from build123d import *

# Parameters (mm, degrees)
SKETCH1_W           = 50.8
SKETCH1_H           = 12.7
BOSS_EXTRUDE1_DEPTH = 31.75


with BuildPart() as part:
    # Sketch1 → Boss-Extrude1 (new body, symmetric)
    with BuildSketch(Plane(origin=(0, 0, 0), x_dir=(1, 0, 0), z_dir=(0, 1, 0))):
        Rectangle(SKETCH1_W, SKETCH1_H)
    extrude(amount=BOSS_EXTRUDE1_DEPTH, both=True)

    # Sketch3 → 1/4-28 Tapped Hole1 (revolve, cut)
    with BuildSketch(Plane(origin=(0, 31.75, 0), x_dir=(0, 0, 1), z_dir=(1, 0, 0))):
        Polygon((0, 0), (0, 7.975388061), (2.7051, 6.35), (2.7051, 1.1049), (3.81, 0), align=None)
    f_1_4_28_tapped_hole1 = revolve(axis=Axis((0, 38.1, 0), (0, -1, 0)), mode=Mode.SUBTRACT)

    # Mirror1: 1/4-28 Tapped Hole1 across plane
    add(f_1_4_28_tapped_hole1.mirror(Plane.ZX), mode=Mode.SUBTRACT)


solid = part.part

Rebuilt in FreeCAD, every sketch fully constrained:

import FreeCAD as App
import Part
import Sketcher
from FreeCAD import Vector
Q = App.Units.Quantity

doc = App.newDocument("Part")
body = doc.addObject("PartDesign::Body", "Body")

# Sketch on XZ plane
sketch1 = body.newObject("Sketcher::SketchObject", "Sketch")
sketch1.AttachmentSupport = (doc.getObject("XZ_Plane"), [""])
sketch1.MapMode = "FlatFace"
sketch1.addGeometry(Part.LineSegment(Vector(-25, -6, 0), Vector(-25, 6, 0)), False)
sketch1.addGeometry(Part.LineSegment(Vector(-25, 6, 0), Vector(25, 6, 0)), False)
sketch1.addGeometry(Part.LineSegment(Vector(25, 6, 0), Vector(25, -6, 0)), False)
sketch1.addGeometry(Part.LineSegment(Vector(25, -6, 0), Vector(-25, -6, 0)), False)
sketch1.addConstraint(Sketcher.Constraint("Coincident", 0, 2, 1, 1))
sketch1.addConstraint(Sketcher.Constraint("Coincident", 1, 2, 2, 1))
sketch1.addConstraint(Sketcher.Constraint("Coincident", 2, 2, 3, 1))
sketch1.addConstraint(Sketcher.Constraint("Coincident", 3, 2, 0, 1))
sketch1.addConstraint(Sketcher.Constraint("Vertical", 0))
sketch1.addConstraint(Sketcher.Constraint("Horizontal", 1))
sketch1.addConstraint(Sketcher.Constraint("Vertical", 2))
sketch1.addConstraint(Sketcher.Constraint("Horizontal", 3))
sketch1.addConstraint(Sketcher.Constraint("Symmetric", 0, 2, 2, 2, -1, 1))
sketch1.addConstraint(Sketcher.Constraint("DistanceX", 1, 1, 1, 2, Q("2 in")))
sketch1.addConstraint(Sketcher.Constraint("DistanceY", 0, 1, 0, 2, Q("0.5 in")))
pad1 = body.newObject("PartDesign::Pad", "Pad")
pad1.Profile = sketch1
pad1.Length = Q("2.5 in")
pad1.Midplane = True

# Sketch on YZ plane
sketch2 = body.newObject("Sketcher::SketchObject", "Sketch001")
sketch2.AttachmentSupport = (doc.getObject("YZ_Plane"), [""])
sketch2.MapMode = "FlatFace"
sketch2.addGeometry(Part.LineSegment(Vector(23.8, 0, 0), Vector(31.8, 0, 0)), False)
sketch2.addGeometry(Part.LineSegment(Vector(31.8, 0, 0), Vector(31.8, 3.8, 0)), False)
sketch2.addGeometry(Part.LineSegment(Vector(31.8, 3.8, 0), Vector(30.6, 2.7, 0)), False)
sketch2.addGeometry(Part.LineSegment(Vector(30.6, 2.7, 0), Vector(25.4, 2.7, 0)), False)
sketch2.addGeometry(Part.LineSegment(Vector(25.4, 2.7, 0), Vector(23.8, 0, 0)), False)
sketch2.addConstraint(Sketcher.Constraint("Coincident", 0, 2, 1, 1))
sketch2.addConstraint(Sketcher.Constraint("Coincident", 1, 2, 2, 1))
sketch2.addConstraint(Sketcher.Constraint("Coincident", 2, 2, 3, 1))
sketch2.addConstraint(Sketcher.Constraint("Coincident", 3, 2, 4, 1))
sketch2.addConstraint(Sketcher.Constraint("Coincident", 4, 2, 0, 1))
sketch2.addConstraint(Sketcher.Constraint("Horizontal", 0))
sketch2.addConstraint(Sketcher.Constraint("Vertical", 1))
sketch2.addConstraint(Sketcher.Constraint("Horizontal", 3))
sketch2.addConstraint(Sketcher.Constraint("PointOnObject", 0, 2, -1))
sketch2.addConstraint(Sketcher.Constraint("DistanceX", -1, 1, 3, 2, Q("1 in")))
sketch2.addConstraint(Sketcher.Constraint("Angle", 2, Q("-135 deg")))
sketch2.addConstraint(Sketcher.Constraint("Angle", 4, Q("-121 deg")))
sketch2.addConstraint(Sketcher.Constraint("DistanceY", 1, 1, 1, 2, Q("0.15 in")))
sketch2.addConstraint(Sketcher.Constraint("DistanceX", -1, 1, 0, 2, Q("1.25 in")))
sketch2.addConstraint(Sketcher.Constraint("DistanceX", 3, 2, 3, 1, Q("0.2065 in")))
groove = body.newObject("PartDesign::Groove", "Groove")
groove.Profile = sketch2
groove.ReferenceAxis = (sketch2, ["H_Axis"])
groove.Angle = 360
doc.recompute()

mirrored = body.newObject("PartDesign::Mirrored", "Mirrored")
mirrored.Originals = [groove]
mirrored.MirrorPlane = (doc.getObject("XZ_Plane"), [""])
body.Tip = mirrored

doc.recompute()
